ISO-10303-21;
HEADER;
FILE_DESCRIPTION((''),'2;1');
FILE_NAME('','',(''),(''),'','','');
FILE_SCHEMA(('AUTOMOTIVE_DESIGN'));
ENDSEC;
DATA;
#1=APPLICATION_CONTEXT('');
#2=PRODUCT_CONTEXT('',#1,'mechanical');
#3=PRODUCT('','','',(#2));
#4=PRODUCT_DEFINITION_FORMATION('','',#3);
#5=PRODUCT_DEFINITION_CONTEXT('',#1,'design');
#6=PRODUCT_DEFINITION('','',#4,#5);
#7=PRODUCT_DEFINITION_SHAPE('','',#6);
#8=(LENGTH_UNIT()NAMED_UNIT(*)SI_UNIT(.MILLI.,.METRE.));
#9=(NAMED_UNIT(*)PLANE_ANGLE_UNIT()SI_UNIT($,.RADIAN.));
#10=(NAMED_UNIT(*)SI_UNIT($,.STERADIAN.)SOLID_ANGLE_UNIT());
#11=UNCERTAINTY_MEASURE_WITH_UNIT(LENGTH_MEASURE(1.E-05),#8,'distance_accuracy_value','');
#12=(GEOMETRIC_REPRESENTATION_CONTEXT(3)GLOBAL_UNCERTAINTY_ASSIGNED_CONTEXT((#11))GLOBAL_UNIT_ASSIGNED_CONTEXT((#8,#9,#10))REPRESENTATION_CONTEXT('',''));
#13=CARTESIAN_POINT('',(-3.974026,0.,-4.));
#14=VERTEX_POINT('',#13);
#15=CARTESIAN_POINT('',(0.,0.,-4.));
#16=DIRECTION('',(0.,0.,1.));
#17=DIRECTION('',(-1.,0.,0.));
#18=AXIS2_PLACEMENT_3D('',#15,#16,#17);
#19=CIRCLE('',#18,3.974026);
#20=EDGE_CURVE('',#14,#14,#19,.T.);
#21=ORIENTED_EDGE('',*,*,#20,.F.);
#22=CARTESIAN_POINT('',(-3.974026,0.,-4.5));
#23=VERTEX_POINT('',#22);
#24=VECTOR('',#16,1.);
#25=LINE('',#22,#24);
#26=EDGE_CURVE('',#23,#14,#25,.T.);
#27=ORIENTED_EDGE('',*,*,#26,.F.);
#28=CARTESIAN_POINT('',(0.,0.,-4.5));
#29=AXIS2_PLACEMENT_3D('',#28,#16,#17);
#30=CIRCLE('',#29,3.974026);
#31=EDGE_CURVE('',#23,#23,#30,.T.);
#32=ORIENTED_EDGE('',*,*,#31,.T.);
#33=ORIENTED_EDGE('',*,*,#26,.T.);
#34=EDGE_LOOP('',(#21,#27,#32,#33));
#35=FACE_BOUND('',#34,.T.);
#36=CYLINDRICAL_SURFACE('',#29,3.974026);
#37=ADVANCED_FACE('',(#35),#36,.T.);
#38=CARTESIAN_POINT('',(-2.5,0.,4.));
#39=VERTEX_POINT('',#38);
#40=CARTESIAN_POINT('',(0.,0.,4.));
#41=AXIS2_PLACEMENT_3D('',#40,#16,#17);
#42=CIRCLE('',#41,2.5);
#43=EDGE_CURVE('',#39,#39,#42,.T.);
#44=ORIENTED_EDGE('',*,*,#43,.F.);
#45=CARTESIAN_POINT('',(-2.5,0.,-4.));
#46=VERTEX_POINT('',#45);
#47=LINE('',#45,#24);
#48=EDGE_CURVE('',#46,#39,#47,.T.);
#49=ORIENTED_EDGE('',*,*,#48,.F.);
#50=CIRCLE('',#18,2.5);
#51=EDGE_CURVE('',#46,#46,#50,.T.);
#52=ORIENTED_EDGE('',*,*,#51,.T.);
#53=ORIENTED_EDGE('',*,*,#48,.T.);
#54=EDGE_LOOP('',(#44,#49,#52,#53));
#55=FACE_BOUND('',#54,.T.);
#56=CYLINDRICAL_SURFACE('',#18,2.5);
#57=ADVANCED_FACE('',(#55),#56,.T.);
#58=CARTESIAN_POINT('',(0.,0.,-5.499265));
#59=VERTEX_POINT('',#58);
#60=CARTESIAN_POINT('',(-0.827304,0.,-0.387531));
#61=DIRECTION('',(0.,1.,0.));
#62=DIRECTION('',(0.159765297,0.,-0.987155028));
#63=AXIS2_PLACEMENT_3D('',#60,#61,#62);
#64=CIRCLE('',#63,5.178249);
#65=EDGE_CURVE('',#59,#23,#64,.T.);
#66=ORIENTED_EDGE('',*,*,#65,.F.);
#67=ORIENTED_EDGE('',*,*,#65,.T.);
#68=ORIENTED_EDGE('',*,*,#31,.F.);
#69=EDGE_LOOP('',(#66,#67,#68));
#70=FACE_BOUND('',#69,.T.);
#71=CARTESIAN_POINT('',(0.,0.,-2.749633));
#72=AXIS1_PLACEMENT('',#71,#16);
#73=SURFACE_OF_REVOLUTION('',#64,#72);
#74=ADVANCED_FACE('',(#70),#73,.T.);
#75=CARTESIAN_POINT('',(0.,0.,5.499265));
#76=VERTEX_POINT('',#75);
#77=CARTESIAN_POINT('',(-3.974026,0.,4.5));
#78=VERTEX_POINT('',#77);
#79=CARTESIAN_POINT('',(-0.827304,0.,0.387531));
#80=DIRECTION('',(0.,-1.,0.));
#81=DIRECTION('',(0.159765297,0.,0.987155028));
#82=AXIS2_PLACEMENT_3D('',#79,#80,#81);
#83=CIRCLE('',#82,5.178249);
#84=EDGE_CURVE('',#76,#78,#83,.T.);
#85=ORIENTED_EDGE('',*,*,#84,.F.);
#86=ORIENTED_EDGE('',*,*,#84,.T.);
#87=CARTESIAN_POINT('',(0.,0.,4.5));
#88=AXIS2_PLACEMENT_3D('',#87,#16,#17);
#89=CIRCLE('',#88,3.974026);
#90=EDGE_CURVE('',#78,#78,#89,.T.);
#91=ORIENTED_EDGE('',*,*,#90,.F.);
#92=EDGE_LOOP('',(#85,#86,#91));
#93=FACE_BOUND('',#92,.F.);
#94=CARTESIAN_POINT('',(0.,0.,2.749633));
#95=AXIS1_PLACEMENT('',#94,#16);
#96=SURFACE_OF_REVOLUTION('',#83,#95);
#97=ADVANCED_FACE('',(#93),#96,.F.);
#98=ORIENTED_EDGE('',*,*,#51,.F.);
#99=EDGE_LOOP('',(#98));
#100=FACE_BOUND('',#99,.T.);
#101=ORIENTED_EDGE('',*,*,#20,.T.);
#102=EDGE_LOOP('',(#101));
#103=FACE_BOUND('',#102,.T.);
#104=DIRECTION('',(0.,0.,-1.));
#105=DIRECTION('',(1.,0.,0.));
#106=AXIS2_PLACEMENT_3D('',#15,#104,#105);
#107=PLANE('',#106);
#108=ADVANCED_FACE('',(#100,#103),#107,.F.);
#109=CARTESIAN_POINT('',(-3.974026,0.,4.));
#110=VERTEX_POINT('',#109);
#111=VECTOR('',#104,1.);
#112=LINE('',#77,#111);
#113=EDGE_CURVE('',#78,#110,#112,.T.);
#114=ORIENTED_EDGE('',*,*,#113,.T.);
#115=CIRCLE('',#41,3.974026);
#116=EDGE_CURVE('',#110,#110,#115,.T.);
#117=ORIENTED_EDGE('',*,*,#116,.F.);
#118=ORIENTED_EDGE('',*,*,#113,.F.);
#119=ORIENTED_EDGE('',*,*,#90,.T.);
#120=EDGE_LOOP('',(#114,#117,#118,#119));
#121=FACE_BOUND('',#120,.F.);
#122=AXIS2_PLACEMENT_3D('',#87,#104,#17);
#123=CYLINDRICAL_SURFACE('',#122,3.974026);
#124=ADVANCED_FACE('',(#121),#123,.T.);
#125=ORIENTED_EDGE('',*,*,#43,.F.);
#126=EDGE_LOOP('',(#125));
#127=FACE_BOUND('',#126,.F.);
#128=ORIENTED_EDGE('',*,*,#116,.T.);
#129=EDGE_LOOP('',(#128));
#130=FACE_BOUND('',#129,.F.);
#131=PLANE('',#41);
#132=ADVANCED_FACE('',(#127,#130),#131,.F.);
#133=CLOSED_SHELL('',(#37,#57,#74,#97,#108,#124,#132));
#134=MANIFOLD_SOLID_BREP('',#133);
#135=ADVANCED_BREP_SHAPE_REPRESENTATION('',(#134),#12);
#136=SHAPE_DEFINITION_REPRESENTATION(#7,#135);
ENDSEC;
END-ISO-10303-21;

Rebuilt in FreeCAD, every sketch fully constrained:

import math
import FreeCAD as App
import Part
import Sketcher
Q = App.Units.Quantity

doc = App.newDocument("Part")
body = doc.addObject("PartDesign::Body", "Body")

sketch1 = body.newObject("Sketcher::SketchObject", "Sketch")
sketch1.AttachmentSupport = (doc.getObject("XZ_Plane"), [""])
sketch1.MapMode = "FlatFace"
sketch1.addGeometry([
    Part.LineSegment(App.Vector(-2.5, 0, 0), App.Vector(0, 0, 0)),
    Part.LineSegment(App.Vector(0, 0, 0), App.Vector(0, 5.499265, 0)),
    Part.ArcOfCircle(Part.Circle(App.Vector(-0.827304, 0.387531, 0), App.Vector(0, 0, 1), 5.178249), math.radians(80.806727), math.radians(127.421987)),
    Part.LineSegment(App.Vector(-3.974026, 4.5, 0), App.Vector(-3.974026, 4, 0)),
    Part.LineSegment(App.Vector(-3.974026, 4, 0), App.Vector(-2.5, 4, 0)),
    Part.LineSegment(App.Vector(-2.5, 4, 0), App.Vector(-2.5, 0, 0)),
], False)
sketch1.addConstraint([
    Sketcher.Constraint("Coincident", 0, 2, 1, 1),
    Sketcher.Constraint("Coincident", 1, 2, 2, 1),
    Sketcher.Constraint("Coincident", 2, 2, 3, 1),
    Sketcher.Constraint("Coincident", 3, 2, 4, 1),
    Sketcher.Constraint("Coincident", 4, 2, 5, 1),
    Sketcher.Constraint("Coincident", 5, 2, 0, 1),
    Sketcher.Constraint("Horizontal", 0),
    Sketcher.Constraint("Vertical", 1),
    Sketcher.Constraint("Vertical", 3),
    Sketcher.Constraint("Horizontal", 4),
    Sketcher.Constraint("Vertical", 5),
    Sketcher.Constraint("Coincident", 0, 2, -1, 1),
    Sketcher.Constraint("DistanceY", 5, 2, 5, 1, Q("4 mm")),
    Sketcher.Constraint("DistanceX", 0, 1, 0, 2, Q("2.5 mm")),
    Sketcher.Constraint("DistanceY", 3, 2, 3, 1, Q("0.5 mm")),
    Sketcher.Constraint("Radius", 2, Q("5.178249 mm")),
    Sketcher.Constraint("DistanceX", 4, 1, 4, 2, Q("1.474026 mm")),
    Sketcher.Constraint("DistanceY", 1, 1, 1, 2, Q("5.499265 mm")),
])
revolution = body.newObject("PartDesign::Revolution", "Revolution")
revolution.Profile = sketch1
revolution.ReferenceAxis = (sketch1, ["V_Axis"])
revolution.Angle = 360
body2 = doc.addObject("PartDesign::Body", "Body001")
doc.recompute()

body2.BaseFeature = body
doc.recompute()

mirroring = doc.addObject("Part::Mirroring", "Mirroring")
mirroring.Source = body
mirroring.Base = App.Vector(0, 0, 0)
mirroring.Normal = App.Vector(0, 0, -1)
body3 = doc.addObject("PartDesign::Body", "Body002")
body3.BaseFeature = mirroring
boolean = body2.newObject("PartDesign::Boolean", "Boolean")
boolean.Type = "Fuse"
boolean.addObjects([body3])
doc.recompute()
mirroring.Visibility = False

doc.recompute()
